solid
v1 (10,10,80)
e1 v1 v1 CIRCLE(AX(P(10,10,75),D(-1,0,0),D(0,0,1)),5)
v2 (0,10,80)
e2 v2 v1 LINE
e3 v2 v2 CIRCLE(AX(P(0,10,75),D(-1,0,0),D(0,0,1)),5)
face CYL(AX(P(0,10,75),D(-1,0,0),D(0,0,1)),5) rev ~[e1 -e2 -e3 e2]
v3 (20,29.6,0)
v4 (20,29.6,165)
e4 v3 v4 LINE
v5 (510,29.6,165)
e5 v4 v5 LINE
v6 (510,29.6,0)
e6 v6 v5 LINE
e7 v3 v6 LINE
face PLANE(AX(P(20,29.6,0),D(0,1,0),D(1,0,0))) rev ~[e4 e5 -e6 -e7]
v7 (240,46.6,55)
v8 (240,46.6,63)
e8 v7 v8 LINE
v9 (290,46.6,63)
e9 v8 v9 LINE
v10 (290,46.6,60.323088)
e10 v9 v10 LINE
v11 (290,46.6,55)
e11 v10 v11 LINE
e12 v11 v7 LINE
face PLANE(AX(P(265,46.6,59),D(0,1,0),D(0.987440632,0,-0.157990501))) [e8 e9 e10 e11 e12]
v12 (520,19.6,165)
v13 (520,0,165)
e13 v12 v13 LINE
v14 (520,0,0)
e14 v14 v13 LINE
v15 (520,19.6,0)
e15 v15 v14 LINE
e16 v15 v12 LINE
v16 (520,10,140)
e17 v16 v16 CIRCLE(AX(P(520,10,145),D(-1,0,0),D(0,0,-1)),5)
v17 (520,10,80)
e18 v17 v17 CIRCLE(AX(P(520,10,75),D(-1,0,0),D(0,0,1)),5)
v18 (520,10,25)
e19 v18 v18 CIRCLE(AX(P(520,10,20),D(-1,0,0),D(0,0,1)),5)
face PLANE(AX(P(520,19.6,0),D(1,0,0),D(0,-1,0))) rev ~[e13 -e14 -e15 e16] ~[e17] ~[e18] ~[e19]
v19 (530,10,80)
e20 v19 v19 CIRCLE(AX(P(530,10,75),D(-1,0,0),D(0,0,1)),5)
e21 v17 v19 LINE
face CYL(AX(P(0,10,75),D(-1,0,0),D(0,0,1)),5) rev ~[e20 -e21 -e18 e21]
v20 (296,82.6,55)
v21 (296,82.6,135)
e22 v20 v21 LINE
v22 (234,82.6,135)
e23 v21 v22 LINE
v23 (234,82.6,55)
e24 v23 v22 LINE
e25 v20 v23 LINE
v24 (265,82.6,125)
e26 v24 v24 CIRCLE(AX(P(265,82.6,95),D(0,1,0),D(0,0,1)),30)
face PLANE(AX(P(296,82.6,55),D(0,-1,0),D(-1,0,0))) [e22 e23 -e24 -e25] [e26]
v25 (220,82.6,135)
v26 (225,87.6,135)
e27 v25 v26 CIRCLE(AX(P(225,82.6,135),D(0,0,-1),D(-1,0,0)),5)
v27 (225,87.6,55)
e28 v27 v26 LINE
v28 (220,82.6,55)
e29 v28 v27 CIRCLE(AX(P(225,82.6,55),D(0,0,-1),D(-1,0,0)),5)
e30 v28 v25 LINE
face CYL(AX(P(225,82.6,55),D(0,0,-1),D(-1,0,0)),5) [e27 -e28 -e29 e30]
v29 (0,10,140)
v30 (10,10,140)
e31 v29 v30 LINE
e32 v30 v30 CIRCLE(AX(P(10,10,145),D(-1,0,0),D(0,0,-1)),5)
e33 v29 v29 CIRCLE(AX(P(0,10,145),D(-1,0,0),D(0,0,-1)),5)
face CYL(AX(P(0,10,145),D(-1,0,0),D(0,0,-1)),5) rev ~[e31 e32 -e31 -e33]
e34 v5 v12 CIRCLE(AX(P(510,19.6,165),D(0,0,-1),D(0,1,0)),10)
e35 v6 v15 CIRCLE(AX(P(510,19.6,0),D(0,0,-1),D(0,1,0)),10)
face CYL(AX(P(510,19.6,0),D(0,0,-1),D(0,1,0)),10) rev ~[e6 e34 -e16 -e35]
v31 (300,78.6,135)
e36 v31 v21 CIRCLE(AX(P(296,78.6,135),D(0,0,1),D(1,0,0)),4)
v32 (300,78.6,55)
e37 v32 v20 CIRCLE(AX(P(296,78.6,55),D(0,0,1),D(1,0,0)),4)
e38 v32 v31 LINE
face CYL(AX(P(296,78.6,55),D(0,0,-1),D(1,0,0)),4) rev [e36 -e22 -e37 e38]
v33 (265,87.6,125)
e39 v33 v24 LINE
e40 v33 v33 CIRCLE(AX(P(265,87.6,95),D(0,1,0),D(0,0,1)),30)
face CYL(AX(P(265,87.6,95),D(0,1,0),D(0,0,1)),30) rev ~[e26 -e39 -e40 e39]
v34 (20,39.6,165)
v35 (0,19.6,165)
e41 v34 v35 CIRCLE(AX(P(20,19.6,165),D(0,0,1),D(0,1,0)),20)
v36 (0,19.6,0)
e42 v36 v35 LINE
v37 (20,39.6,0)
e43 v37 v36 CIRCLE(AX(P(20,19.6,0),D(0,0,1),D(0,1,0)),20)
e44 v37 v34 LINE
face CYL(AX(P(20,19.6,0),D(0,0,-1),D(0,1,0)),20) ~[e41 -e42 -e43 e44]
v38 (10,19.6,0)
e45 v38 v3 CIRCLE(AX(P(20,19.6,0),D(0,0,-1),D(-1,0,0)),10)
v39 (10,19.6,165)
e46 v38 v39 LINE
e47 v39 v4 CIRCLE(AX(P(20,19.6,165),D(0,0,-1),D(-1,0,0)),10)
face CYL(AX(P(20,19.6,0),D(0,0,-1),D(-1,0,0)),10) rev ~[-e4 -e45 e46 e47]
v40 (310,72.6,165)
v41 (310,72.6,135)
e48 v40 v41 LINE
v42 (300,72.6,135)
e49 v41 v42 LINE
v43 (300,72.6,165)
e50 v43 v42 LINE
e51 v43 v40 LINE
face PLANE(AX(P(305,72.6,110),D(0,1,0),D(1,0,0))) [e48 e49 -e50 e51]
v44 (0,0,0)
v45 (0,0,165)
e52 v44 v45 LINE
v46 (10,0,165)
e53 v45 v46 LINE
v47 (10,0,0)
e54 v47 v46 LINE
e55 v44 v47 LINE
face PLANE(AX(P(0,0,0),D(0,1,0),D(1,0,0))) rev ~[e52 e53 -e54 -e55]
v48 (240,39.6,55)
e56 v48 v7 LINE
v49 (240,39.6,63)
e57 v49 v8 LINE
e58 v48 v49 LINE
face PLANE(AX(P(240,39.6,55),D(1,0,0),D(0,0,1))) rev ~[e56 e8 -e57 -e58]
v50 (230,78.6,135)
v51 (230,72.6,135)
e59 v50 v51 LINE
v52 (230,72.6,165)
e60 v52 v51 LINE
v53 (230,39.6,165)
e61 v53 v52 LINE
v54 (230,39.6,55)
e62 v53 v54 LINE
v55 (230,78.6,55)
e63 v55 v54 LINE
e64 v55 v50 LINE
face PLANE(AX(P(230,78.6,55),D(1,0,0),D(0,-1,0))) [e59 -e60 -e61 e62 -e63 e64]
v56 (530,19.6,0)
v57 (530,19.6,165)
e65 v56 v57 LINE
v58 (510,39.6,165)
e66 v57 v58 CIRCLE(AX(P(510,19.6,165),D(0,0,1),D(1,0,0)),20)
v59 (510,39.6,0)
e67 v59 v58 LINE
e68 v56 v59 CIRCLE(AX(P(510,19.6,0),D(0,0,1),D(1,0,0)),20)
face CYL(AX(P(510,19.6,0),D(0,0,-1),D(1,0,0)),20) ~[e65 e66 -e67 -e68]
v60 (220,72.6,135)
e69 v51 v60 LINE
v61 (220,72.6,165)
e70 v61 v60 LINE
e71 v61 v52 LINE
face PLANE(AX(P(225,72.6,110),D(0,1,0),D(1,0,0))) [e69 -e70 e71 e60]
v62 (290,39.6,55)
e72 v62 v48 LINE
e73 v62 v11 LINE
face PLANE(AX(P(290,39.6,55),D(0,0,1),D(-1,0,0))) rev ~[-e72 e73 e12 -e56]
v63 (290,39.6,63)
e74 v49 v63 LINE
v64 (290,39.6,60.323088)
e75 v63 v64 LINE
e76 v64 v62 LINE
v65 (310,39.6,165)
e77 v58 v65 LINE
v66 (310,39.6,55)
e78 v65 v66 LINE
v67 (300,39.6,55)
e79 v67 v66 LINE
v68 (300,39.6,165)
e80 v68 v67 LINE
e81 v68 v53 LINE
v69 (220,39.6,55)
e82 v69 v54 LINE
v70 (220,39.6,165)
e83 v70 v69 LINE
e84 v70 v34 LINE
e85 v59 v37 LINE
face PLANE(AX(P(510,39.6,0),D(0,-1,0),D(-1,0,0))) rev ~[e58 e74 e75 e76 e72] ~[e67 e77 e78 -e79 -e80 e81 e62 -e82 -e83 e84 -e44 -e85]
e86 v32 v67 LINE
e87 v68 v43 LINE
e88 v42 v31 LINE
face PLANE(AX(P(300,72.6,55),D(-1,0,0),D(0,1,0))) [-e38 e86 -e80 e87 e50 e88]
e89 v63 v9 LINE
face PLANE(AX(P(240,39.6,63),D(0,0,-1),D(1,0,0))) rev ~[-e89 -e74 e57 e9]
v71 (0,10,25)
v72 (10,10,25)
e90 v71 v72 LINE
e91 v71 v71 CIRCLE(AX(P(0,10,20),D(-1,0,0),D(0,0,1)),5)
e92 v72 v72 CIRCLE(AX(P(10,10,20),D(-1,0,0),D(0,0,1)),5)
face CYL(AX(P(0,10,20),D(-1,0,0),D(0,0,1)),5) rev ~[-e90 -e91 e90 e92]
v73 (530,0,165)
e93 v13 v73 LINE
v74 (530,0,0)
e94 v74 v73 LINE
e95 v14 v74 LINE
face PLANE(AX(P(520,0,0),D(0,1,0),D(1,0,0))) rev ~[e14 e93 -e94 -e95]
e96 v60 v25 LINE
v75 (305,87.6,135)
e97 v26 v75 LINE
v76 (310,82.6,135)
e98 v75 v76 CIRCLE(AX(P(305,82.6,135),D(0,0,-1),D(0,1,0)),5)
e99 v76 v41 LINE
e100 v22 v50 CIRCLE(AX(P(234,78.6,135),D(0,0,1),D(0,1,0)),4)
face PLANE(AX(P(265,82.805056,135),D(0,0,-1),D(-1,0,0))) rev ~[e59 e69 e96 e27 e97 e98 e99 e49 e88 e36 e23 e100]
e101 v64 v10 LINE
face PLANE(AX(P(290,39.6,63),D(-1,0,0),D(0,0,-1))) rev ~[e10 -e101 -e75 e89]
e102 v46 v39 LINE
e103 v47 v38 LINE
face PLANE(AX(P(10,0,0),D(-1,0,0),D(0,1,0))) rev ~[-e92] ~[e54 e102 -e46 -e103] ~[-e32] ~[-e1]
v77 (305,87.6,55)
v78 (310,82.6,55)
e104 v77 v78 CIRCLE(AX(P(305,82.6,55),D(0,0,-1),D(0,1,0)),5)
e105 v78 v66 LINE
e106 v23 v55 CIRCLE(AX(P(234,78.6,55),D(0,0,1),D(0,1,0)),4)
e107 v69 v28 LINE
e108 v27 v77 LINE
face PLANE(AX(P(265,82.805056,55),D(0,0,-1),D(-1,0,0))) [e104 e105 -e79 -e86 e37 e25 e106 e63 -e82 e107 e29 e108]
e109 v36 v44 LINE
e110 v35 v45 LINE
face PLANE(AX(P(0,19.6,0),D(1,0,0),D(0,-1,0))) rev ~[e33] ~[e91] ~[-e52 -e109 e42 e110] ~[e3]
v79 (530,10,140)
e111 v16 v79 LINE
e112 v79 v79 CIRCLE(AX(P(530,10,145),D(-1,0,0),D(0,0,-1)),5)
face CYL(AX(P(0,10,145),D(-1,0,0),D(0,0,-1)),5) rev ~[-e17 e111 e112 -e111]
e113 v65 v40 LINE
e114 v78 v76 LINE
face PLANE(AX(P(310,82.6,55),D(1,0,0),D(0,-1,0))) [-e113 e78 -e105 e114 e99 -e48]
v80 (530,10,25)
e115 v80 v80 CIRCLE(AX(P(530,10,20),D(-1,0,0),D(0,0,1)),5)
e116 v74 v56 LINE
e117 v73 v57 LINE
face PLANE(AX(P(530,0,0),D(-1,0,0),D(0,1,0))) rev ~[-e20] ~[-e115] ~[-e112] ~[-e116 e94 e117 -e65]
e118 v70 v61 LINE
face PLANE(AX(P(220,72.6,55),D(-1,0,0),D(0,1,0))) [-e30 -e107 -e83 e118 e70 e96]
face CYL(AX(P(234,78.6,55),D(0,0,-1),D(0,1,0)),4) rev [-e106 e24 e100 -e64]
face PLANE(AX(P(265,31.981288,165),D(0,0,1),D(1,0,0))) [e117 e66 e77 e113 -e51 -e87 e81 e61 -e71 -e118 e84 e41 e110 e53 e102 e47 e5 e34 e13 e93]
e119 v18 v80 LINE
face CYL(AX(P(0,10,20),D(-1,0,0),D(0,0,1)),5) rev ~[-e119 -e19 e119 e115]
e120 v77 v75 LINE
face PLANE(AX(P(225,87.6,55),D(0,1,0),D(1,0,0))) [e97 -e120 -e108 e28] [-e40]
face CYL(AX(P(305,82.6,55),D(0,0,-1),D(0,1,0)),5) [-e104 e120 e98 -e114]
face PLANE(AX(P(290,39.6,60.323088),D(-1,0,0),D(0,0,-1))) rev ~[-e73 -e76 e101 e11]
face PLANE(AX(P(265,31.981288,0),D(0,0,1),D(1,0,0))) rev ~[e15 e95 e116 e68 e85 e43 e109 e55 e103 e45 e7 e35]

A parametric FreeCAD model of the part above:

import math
import FreeCAD as App
import Part
import Sketcher


def add_polygon(sketch, points):
    """Adds a closed chain of lines whose ends are joined by coincident constraints."""
    first, n = sketch.GeometryCount, len(points)
    for a, b in zip(points, points[1:] + points[:1]):
        sketch.addGeometry(Part.LineSegment(App.Vector(*a, 0), App.Vector(*b, 0)), False)
    for i in range(n):
        sketch.addConstraint(Sketcher.Constraint("Coincident", first + i, 2, first + (i + 1) % n, 1))

doc = App.newDocument("Part")
params = doc.addObject("Spreadsheet::Sheet", "Params")
for row, (alias, value) in enumerate([
    ("sketch1_radius", "10 mm"),
    ("sketch1_radius2", "20 mm"),
    ("sketch1_width", "490 mm"),
    ("sketch1_height", "19.6 mm"),
    ("pad1_length", "165 mm"),
    ("sketch2_diameter", "10 mm"),
    ("sketch3_width", "10 mm"),
    ("sketch3_height", "110 mm"),
    ("pad2_length", "33 mm"),
    ("sketch4_radius", "4 mm"),
    ("sketch4_radius2", "5 mm"),
    ("sketch4_width", "62 mm"),
    ("sketch4_width2", "10 mm"),
    ("pad3_length", "80 mm"),
    ("sketch5_diameter", "60 mm"),
    ("pocket2_length", "5 mm"),
    ("sketch6_width", "50 mm"),
    ("sketch6_height", "8 mm"),
    ("pad4_length", "7 mm"),
], start=1):
    params.set(f"A{row}", alias)
    params.set(f"B{row}", "=" + value)
    params.setAlias(f"B{row}", alias)

body = doc.addObject("PartDesign::Body", "Body")

sketch1 = body.newObject("Sketcher::SketchObject", "Sketch")
sketch1.AttachmentSupport = (doc.getObject("XY_Plane"), [""])
sketch1.MapMode = "FlatFace"
sketch1.addGeometry([
    Part.LineSegment(App.Vector(20, 30, 0), App.Vector(510, 30, 0)),
    Part.ArcOfCircle(Part.Circle(App.Vector(510, 20, 0), App.Vector(0, 0, 1), 10), math.radians(0), math.radians(90)),
    Part.LineSegment(App.Vector(520, 20, 0), App.Vector(520, 0, 0)),
    Part.LineSegment(App.Vector(520, 0, 0), App.Vector(530, 0, 0)),
    Part.LineSegment(App.Vector(530, 0, 0), App.Vector(530, 20, 0)),
    Part.ArcOfCircle(Part.Circle(App.Vector(510, 20, 0), App.Vector(0, 0, 1), 20), math.radians(0), math.radians(90)),
    Part.LineSegment(App.Vector(510, 40, 0), App.Vector(20, 40, 0)),
    Part.ArcOfCircle(Part.Circle(App.Vector(20, 20, 0), App.Vector(0, 0, 1), 20), math.radians(90), math.radians(180)),
    Part.LineSegment(App.Vector(0, 20, 0), App.Vector(0, 0, 0)),
    Part.LineSegment(App.Vector(0, 0, 0), App.Vector(10, 0, 0)),
    Part.LineSegment(App.Vector(10, 0, 0), App.Vector(10, 20, 0)),
    Part.ArcOfCircle(Part.Circle(App.Vector(20, 20, 0), App.Vector(0, 0, 1), 10), math.radians(90), math.radians(180)),
], False)
sketch1.addConstraint([
    Sketcher.Constraint("Tangent", 0, 2, 1, 2),
    Sketcher.Constraint("Tangent", 1, 1, 2, 1),
    Sketcher.Constraint("Coincident", 2, 2, 3, 1),
    Sketcher.Constraint("Coincident", 3, 2, 4, 1),
    Sketcher.Constraint("Tangent", 4, 2, 5, 1),
    Sketcher.Constraint("Tangent", 5, 2, 6, 1),
    Sketcher.Constraint("Tangent", 6, 2, 7, 1),
    Sketcher.Constraint("Tangent", 7, 2, 8, 1),
    Sketcher.Constraint("Coincident", 8, 2, 9, 1),
    Sketcher.Constraint("Coincident", 9, 2, 10, 1),
    Sketcher.Constraint("Tangent", 10, 2, 11, 2),
    Sketcher.Constraint("Tangent", 11, 1, 0, 1),
    Sketcher.Constraint("Horizontal", 0),
    Sketcher.Constraint("Vertical", 2),
    Sketcher.Constraint("Horizontal", 3),
    Sketcher.Constraint("Vertical", 4),
    Sketcher.Constraint("Horizontal", 6),
    Sketcher.Constraint("Vertical", 8),
    Sketcher.Constraint("Horizontal", 9),
    Sketcher.Constraint("Vertical", 10),
    Sketcher.Constraint("Coincident", 8, 2, -1, 1),
    Sketcher.Constraint("Coincident", 5, 3, 1, 3),
    Sketcher.Constraint("Coincident", 11, 3, 7, 3),
    Sketcher.Constraint("Equal", 5, 7),
    Sketcher.Constraint("PointOnObject", 2, 2, -1),
    Sketcher.Constraint("Radius", 1, 10.0),
    Sketcher.Constraint("Radius", 5, 20.0),
    Sketcher.Constraint("DistanceX", 0, 1, 0, 2, 490.0),
    Sketcher.Constraint("DistanceY", 2, 2, 2, 1, 19.6),
])
sketch1.setExpression("Constraints[25]", "Params.sketch1_radius")
sketch1.setExpression("Constraints[26]", "Params.sketch1_radius2")
sketch1.setExpression("Constraints[27]", "Params.sketch1_width")
sketch1.setExpression("Constraints[28]", "Params.sketch1_height")
pad1 = body.newObject("PartDesign::Pad", "Pad")
pad1.Profile = sketch1
pad1.setExpression("Length", "Params.pad1_length")

sketch2 = body.newObject("Sketcher::SketchObject", "Sketch001")
sketch2.AttachmentSupport = (doc.getObject("YZ_Plane"), [""])
sketch2.MapMode = "FlatFace"
sketch2.addGeometry([
    Part.Circle(App.Vector(10, 20, 0), App.Vector(0, 0, 1), 5),
    Part.Circle(App.Vector(10, 145, 0), App.Vector(0, 0, 1), 5),
    Part.Circle(App.Vector(10, 75, 0), App.Vector(0, 0, 1), 5),
], False)
sketch2.addConstraint([
    Sketcher.Constraint("Equal", 0, 1),
    Sketcher.Constraint("Equal", 1, 2),
    Sketcher.Constraint("Vertical", 0, 3, 1, 3),
    Sketcher.Constraint("Vertical", 1, 3, 2, 3),
    Sketcher.Constraint("Diameter", 0, 10.0),
    Sketcher.Constraint("DistanceX", -1, 1, 0, 3, 10.0),
    Sketcher.Constraint("DistanceY", -1, 1, 0, 3, 20.0),
    Sketcher.Constraint("DistanceY", -1, 1, 1, 3, 145.0),
    Sketcher.Constraint("DistanceY", -1, 1, 2, 3, 75.0),
])
sketch2.setExpression("Constraints[4]", "Params.sketch2_diameter")
pocket1 = body.newObject("PartDesign::Pocket", "Pocket")
pocket1.Profile = sketch2
pocket1.Type = "ThroughAll"
pocket1.Reversed = True

sketch3 = body.newObject("Sketcher::SketchObject", "Sketch002")
sketch3.AttachmentSupport = (doc.getObject("XZ_Plane"), [""])
sketch3.MapMode = "FlatFace"
sketch3.AttachmentOffset = App.Placement(App.Vector(0, 0, -39.6), App.Rotation())
add_polygon(sketch3, [(220, 55), (220, 165), (230, 165), (230, 55)])
add_polygon(sketch3, [(300, 55), (300, 165), (310, 165), (310, 55)])
sketch3.addConstraint([
    Sketcher.Constraint("Vertical", 0),
    Sketcher.Constraint("Horizontal", 1),
    Sketcher.Constraint("Vertical", 2),
    Sketcher.Constraint("Horizontal", 3),
    Sketcher.Constraint("Vertical", 4),
    Sketcher.Constraint("Horizontal", 5),
    Sketcher.Constraint("Vertical", 6),
    Sketcher.Constraint("Horizontal", 7),
    Sketcher.Constraint("Horizontal", 1, 2, 4, 2),
    Sketcher.Constraint("Horizontal", 3, 2, 6, 2),
    Sketcher.Constraint("Equal", 3, 5),
    Sketcher.Constraint("DistanceX", 1, 1, 1, 2, 10.0),
    Sketcher.Constraint("DistanceY", 0, 1, 0, 2, 110.0),
    Sketcher.Constraint("DistanceX", -1, 1, 0, 2, 220.0),
    Sketcher.Constraint("DistanceY", -1, 1, 0, 2, 165.0),
    Sketcher.Constraint("DistanceX", -1, 1, 4, 2, 300.0),
])
sketch3.setExpression("Constraints[19]", "Params.sketch3_width")
sketch3.setExpression("Constraints[20]", "Params.sketch3_height")
pad2 = body.newObject("PartDesign::Pad", "Pad001")
pad2.Profile = sketch3
pad2.setExpression("Length", "Params.pad2_length")
pad2.Reversed = True

sketch4 = body.newObject("Sketcher::SketchObject", "Sketch003")
sketch4.AttachmentSupport = (doc.getObject("XY_Plane"), [""])
sketch4.MapMode = "FlatFace"
sketch4.AttachmentOffset = App.Placement(App.Vector(0, 0, 55), App.Rotation())
sketch4.addGeometry([
    Part.LineSegment(App.Vector(300, 72.6, 0), App.Vector(300, 78.6, 0)),
    Part.ArcOfCircle(Part.Circle(App.Vector(296, 78.6, 0), App.Vector(0, 0, 1), 4), math.radians(0), math.radians(90)),
    Part.LineSegment(App.Vector(296, 82.6, 0), App.Vector(234, 82.6, 0)),
    Part.ArcOfCircle(Part.Circle(App.Vector(234, 78.6, 0), App.Vector(0, 0, 1), 4), math.radians(90), math.radians(180)),
    Part.LineSegment(App.Vector(230, 78.6, 0), App.Vector(230, 72.6, 0)),
    Part.LineSegment(App.Vector(230, 72.6, 0), App.Vector(220, 72.6, 0)),
    Part.LineSegment(App.Vector(220, 72.6, 0), App.Vector(220, 82.6, 0)),
    Part.ArcOfCircle(Part.Circle(App.Vector(225, 82.6, 0), App.Vector(0, 0, 1), 5), math.radians(90), math.radians(180)),
    Part.LineSegment(App.Vector(225, 87.6, 0), App.Vector(305, 87.6, 0)),
    Part.ArcOfCircle(Part.Circle(App.Vector(305, 82.6, 0), App.Vector(0, 0, 1), 5), math.radians(0), math.radians(90)),
    Part.LineSegment(App.Vector(310, 82.6, 0), App.Vector(310, 72.6, 0)),
    Part.LineSegment(App.Vector(310, 72.6, 0), App.Vector(300, 72.6, 0)),
], False)
sketch4.addConstraint([
    Sketcher.Constraint("Tangent", 0, 2, 1, 1),
    Sketcher.Constraint("Tangent", 1, 2, 2, 1),
    Sketcher.Constraint("Tangent", 2, 2, 3, 1),
    Sketcher.Constraint("Tangent", 3, 2, 4, 1),
    Sketcher.Constraint("Coincident", 4, 2, 5, 1),
    Sketcher.Constraint("Coincident", 5, 2, 6, 1),
    Sketcher.Constraint("Tangent", 6, 2, 7, 2),
    Sketcher.Constraint("Tangent", 7, 1, 8, 1),
    Sketcher.Constraint("Tangent", 8, 2, 9, 2),
    Sketcher.Constraint("Tangent", 9, 1, 10, 1),
    Sketcher.Constraint("Coincident", 10, 2, 11, 1),
    Sketcher.Constraint("Coincident", 11, 2, 0, 1),
    Sketcher.Constraint("Vertical", 0),
    Sketcher.Constraint("Horizontal", 2),
    Sketcher.Constraint("Vertical", 4),
    Sketcher.Constraint("Horizontal", 5),
    Sketcher.Constraint("Vertical", 6),
    Sketcher.Constraint("Horizontal", 8),
    Sketcher.Constraint("Vertical", 10),
    Sketcher.Constraint("Horizontal", 11),
    Sketcher.Constraint("Equal", 1, 3),
    Sketcher.Constraint("Equal", 7, 9),
    Sketcher.Constraint("Horizontal", 9, 3, 1, 2),
    Sketcher.Constraint("Horizontal", 5, 2, 10, 2),
    Sketcher.Constraint("Equal", 5, 11),
    Sketcher.Constraint("Equal", 11, 6),
    Sketcher.Constraint("Radius", 1, 4.0),
    Sketcher.Constraint("Radius", 7, 5.0),
    Sketcher.Constraint("DistanceX", 2, 2, 2, 1, 62.0),
    Sketcher.Constraint("DistanceX", 5, 2, 5, 1, 10.0),
    Sketcher.Constraint("DistanceX", -1, 1, 1, 3, 296.0),
    Sketcher.Constraint("DistanceY", -1, 1, 1, 3, 78.6),
])
sketch4.setExpression("Constraints[26]", "Params.sketch4_radius")
sketch4.setExpression("Constraints[27]", "Params.sketch4_radius2")
sketch4.setExpression("Constraints[28]", "Params.sketch4_width")
sketch4.setExpression("Constraints[29]", "Params.sketch4_width2")
pad3 = body.newObject("PartDesign::Pad", "Pad002")
pad3.Profile = sketch4
pad3.setExpression("Length", "Params.pad3_length")

sketch5 = body.newObject("Sketcher::SketchObject", "Sketch004")
sketch5.AttachmentSupport = (doc.getObject("XZ_Plane"), [""])
sketch5.MapMode = "FlatFace"
sketch5.AttachmentOffset = App.Placement(App.Vector(0, 0, -87.6), App.Rotation())
sketch5.addGeometry(Part.Circle(App.Vector(265, 95, 0), App.Vector(0, 0, 1), 30), False)
sketch5.addConstraint([
    Sketcher.Constraint("Diameter", 0, 60.0),
    Sketcher.Constraint("DistanceX", -1, 1, 0, 3, 265.0),
    Sketcher.Constraint("DistanceY", -1, 1, 0, 3, 95.0),
])
sketch5.setExpression("Constraints[0]", "Params.sketch5_diameter")
pocket2 = body.newObject("PartDesign::Pocket", "Pocket001")
pocket2.Profile = sketch5
pocket2.setExpression("Length", "Params.pocket2_length")
pocket2.Reversed = True

sketch6 = body.newObject("Sketcher::SketchObject", "Sketch005")
sketch6.AttachmentSupport = (doc.getObject("XZ_Plane"), [""])
sketch6.MapMode = "FlatFace"
sketch6.AttachmentOffset = App.Placement(App.Vector(0, 0, -39.6), App.Rotation())
add_polygon(sketch6, [(240, 55), (290, 55), (290, 60.3), (290, 63), (240, 63)])
sketch6.addConstraint([
    Sketcher.Constraint("Horizontal", 0),
    Sketcher.Constraint("Vertical", 1),
    Sketcher.Constraint("Vertical", 2),
    Sketcher.Constraint("Horizontal", 3),
    Sketcher.Constraint("Vertical", 4),
    Sketcher.Constraint("DistanceX", 0, 1, 0, 2, 50.0),
    Sketcher.Constraint("DistanceY", 4, 2, 4, 1, 8.0),
    Sketcher.Constraint("DistanceX", -1, 1, 0, 2, 290.0),
    Sketcher.Constraint("DistanceY", -1, 1, 0, 2, 55.0),
    Sketcher.Constraint("DistanceY", 1, 1, 1, 2, 5.323088),
])
sketch6.setExpression("Constraints[10]", "Params.sketch6_width")
sketch6.setExpression("Constraints[11]", "Params.sketch6_height")
pad4 = body.newObject("PartDesign::Pad", "Pad003")
pad4.Profile = sketch6
pad4.setExpression("Length", "Params.pad4_length")
pad4.Reversed = True

doc.recompute()
